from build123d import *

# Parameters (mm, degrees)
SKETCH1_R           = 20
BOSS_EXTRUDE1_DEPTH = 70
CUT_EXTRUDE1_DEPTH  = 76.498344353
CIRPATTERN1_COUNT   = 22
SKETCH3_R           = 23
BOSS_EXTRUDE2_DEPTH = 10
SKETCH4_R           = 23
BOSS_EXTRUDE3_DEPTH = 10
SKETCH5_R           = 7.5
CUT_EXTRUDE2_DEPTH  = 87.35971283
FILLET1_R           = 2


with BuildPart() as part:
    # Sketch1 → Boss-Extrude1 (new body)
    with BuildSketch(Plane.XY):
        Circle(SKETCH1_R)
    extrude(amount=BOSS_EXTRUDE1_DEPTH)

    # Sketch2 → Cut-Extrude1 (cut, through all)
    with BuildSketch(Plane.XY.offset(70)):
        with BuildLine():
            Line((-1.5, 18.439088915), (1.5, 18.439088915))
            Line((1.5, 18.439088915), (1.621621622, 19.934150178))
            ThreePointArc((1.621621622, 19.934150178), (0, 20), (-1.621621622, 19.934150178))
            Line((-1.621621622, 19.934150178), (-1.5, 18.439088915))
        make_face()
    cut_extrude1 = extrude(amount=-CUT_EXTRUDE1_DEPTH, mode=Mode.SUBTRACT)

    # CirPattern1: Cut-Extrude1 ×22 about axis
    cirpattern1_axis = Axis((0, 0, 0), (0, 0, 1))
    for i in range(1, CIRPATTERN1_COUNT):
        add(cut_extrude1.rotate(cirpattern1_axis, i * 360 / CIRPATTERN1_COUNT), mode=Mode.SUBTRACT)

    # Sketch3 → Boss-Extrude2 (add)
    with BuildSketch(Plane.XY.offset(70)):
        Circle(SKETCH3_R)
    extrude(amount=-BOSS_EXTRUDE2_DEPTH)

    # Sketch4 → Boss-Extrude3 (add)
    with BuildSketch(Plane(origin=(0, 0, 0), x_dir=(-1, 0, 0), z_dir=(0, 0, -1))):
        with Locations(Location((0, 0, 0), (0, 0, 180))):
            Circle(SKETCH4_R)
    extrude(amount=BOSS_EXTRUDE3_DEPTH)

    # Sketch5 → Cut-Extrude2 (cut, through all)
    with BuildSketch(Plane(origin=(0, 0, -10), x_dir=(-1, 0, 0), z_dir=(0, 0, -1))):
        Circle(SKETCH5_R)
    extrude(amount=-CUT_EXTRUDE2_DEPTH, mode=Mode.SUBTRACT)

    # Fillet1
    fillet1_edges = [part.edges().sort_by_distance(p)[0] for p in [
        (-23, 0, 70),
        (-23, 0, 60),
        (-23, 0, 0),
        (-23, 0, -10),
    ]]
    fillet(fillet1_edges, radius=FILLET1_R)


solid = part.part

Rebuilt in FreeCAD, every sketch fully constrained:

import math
import FreeCAD as App
import Part
import Sketcher

V = App.Vector


def edges_at(feature, points):
    """Names of the edges that pass closest to the given points."""
    edges = feature.Shape.Edges
    near = lambda p: min(range(len(edges)), key=lambda i: edges[i].distToShape(Part.Vertex(*p))[0])
    return sorted({f"Edge{near(p) + 1}" for p in points})

doc = App.newDocument("Part")
body = doc.addObject("PartDesign::Body", "Body")

# Sketch on XY plane
sketch1 = body.newObject("Sketcher::SketchObject", "Sketch")
sketch1.AttachmentSupport = (doc.getObject("XY_Plane"), [""])
sketch1.MapMode = "FlatFace"
sketch1.addGeometry(Part.Circle(V(0, 0, 0), V(0, 0, 1), 20), False)
sketch1.addConstraint(Sketcher.Constraint("Coincident", 0, 3, -1, 1))
sketch1.addConstraint(Sketcher.Constraint("Diameter", 0, 40.0))
pad1 = body.newObject("PartDesign::Pad", "Pad")
pad1.Profile = sketch1
pad1.Length = 70

# Sketch on XY plane
sketch2 = body.newObject("Sketcher::SketchObject", "Sketch001")
sketch2.AttachmentSupport = (doc.getObject("XY_Plane"), [""])
sketch2.MapMode = "FlatFace"
sketch2.AttachmentOffset = App.Placement(V(0, 0, 70), App.Rotation())
sketch2.addGeometry(Part.LineSegment(V(-1.5, 18.4, 0), V(1.5, 18.4, 0)), False)
sketch2.addGeometry(Part.LineSegment(V(1.5, 18.4, 0), V(1.6, 19.9, 0)), False)
sketch2.addGeometry(Part.ArcOfCircle(Part.Circle(V(0, 0, 0), V(0, 0, 1), 20), math.radians(85.35), math.radians(94.65)), False)
sketch2.addGeometry(Part.LineSegment(V(-1.6, 19.9, 0), V(-1.5, 18.4, 0)), False)
sketch2.addConstraint(Sketcher.Constraint("Coincident", 0, 2, 1, 1))
sketch2.addConstraint(Sketcher.Constraint("Coincident", 1, 2, 2, 1))
sketch2.addConstraint(Sketcher.Constraint("Coincident", 2, 2, 3, 1))
sketch2.addConstraint(Sketcher.Constraint("Coincident", 3, 2, 0, 1))
sketch2.addConstraint(Sketcher.Constraint("Horizontal", 0))
sketch2.addConstraint(Sketcher.Constraint("Coincident", 2, 3, -1, 1))
sketch2.addConstraint(Sketcher.Constraint("Horizontal", 1, 2, 2, 2))
sketch2.addConstraint(Sketcher.Constraint("Equal", 1, 3))
sketch2.addConstraint(Sketcher.Constraint("Radius", 2, 20.0))
sketch2.addConstraint(Sketcher.Constraint("DistanceX", 0, 1, 0, 2, 3.0))
sketch2.addConstraint(Sketcher.Constraint("Distance", 1, 1.5))
sketch2.addConstraint(Sketcher.Constraint("DistanceX", -1, 1, 1, 2, 1.621622))
pocket1 = body.newObject("PartDesign::Pocket", "Pocket")
pocket1.Profile = sketch2
pocket1.Type = "ThroughAll"
doc.recompute()

polarpattern = body.newObject("PartDesign::PolarPattern", "PolarPattern")
polarpattern.Originals = [pocket1]
polarpattern.Axis = (doc.getObject("Z_Axis"), [""])
polarpattern.Angle = 360
polarpattern.Occurrences = 22
body.Tip = polarpattern

# Sketch on XY plane
sketch3 = body.newObject("Sketcher::SketchObject", "Sketch002")
sketch3.AttachmentSupport = (doc.getObject("XY_Plane"), [""])
sketch3.MapMode = "FlatFace"
sketch3.AttachmentOffset = App.Placement(V(0, 0, 70), App.Rotation())
sketch3.addGeometry(Part.Circle(V(0, 0, 0), V(0, 0, 1), 23), False)
sketch3.addConstraint(Sketcher.Constraint("Coincident", 0, 3, -1, 1))
sketch3.addConstraint(Sketcher.Constraint("Diameter", 0, 46.0))
pad2 = body.newObject("PartDesign::Pad", "Pad001")
pad2.Profile = sketch3
pad2.Length = 10
pad2.Reversed = True

# Sketch on XY plane
sketch4 = body.newObject("Sketcher::SketchObject", "Sketch003")
sketch4.AttachmentSupport = (doc.getObject("XY_Plane"), [""])
sketch4.MapMode = "FlatFace"
sketch4.addGeometry(Part.Circle(V(0, 0, 0), V(0, 0, 1), 23), False)
sketch4.addConstraint(Sketcher.Constraint("Coincident", 0, 3, -1, 1))
sketch4.addConstraint(Sketcher.Constraint("Diameter", 0, 46.0))
pad3 = body.newObject("PartDesign::Pad", "Pad002")
pad3.Profile = sketch4
pad3.Length = 10
pad3.Reversed = True

# Sketch on XY plane
sketch5 = body.newObject("Sketcher::SketchObject", "Sketch004")
sketch5.AttachmentSupport = (doc.getObject("XY_Plane"), [""])
sketch5.MapMode = "FlatFace"
sketch5.AttachmentOffset = App.Placement(V(0, 0, -10), App.Rotation())
sketch5.addGeometry(Part.Circle(V(0, 0, 0), V(0, 0, 1), 8), False)
sketch5.addConstraint(Sketcher.Constraint("Coincident", 0, 3, -1, 1))
sketch5.addConstraint(Sketcher.Constraint("Diameter", 0, 15.0))
pocket2 = body.newObject("PartDesign::Pocket", "Pocket001")
pocket2.Profile = sketch5
pocket2.Type = "ThroughAll"
pocket2.Reversed = True
doc.recompute()

fillet = body.newObject("PartDesign::Fillet", "Fillet")
fillet.Base = (pocket2, edges_at(pocket2, [
    (-23, 0, 70),
    (-23, 0, 60),
    (-23, 0, 0),
    (-23, 0, -10),
]))
fillet.Radius = 2

doc.recompute()
